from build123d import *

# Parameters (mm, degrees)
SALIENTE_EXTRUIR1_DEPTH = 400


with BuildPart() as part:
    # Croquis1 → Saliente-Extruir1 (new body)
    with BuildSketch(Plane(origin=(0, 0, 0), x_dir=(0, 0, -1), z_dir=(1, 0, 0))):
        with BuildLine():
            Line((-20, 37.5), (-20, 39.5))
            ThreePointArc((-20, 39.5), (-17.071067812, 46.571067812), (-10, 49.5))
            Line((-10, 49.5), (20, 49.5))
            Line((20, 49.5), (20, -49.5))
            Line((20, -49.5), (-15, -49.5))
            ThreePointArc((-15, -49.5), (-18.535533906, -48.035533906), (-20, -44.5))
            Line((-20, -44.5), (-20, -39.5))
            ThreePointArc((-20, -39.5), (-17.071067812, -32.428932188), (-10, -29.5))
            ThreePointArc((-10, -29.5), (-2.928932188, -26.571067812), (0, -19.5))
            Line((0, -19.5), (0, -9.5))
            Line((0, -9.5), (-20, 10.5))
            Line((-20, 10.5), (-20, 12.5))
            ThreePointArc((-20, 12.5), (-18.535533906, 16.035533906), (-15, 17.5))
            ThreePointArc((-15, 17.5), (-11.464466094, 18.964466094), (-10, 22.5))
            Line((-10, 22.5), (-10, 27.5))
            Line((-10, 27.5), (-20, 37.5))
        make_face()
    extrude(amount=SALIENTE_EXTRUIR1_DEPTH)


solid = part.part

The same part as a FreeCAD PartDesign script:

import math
import FreeCAD as App
import Part
import Sketcher

V = App.Vector
Q = App.Units.Quantity

doc = App.newDocument("Part")
params = doc.addObject("Spreadsheet::Sheet", "Params")
for row, (alias, value) in enumerate([
    ("sketch1_radius", "5 mm"),
    ("sketch1_width", "2 mm"),
    ("sketch1_width2", "5 mm"),
    ("sketch1_width3", "10 mm"),
    ("sketch1_width4", "99 mm"),
    ("pad1_length", "400 mm"),
], start=1):
    params.set(f"A{row}", alias)
    params.set(f"B{row}", "=" + value)
    params.setAlias(f"B{row}", alias)

body = doc.addObject("PartDesign::Body", "Body")

# Sketch on YZ plane
sketch1 = doc.addObject("Sketcher::SketchObject", "Sketch")
body.addObject(sketch1)
sketch1.AttachmentSupport = (doc.YZ_Plane, [""])
sketch1.MapMode = "FlatFace"
sketch1.addGeometry([
    Part.LineSegment(V(39.5, 20, 0), V(37.5, 20, 0)),  # 0
    Part.LineSegment(V(37.5, 20, 0), V(27.5, 10, 0)),  # 1
    Part.LineSegment(V(27.5, 10, 0), V(22.5, 10, 0)),  # 2
    Part.ArcOfCircle(Part.Circle(V(22.5, 15, 0), V(0, 0, 1), 5), math.radians(180), math.radians(270)),  # 3
    Part.ArcOfCircle(Part.Circle(V(12.5, 15, 0), V(0, 0, 1), 5), math.radians(0), math.radians(90)),  # 4
    Part.LineSegment(V(12.5, 20, 0), V(10.5, 20, 0)),  # 5
    Part.LineSegment(V(10.5, 20, 0), V(-9.5, 0, 0)),  # 6
    Part.LineSegment(V(-9.5, 0, 0), V(-19.5, 0, 0)),  # 7
    Part.ArcOfCircle(Part.Circle(V(-19.5, 10, 0), V(0, 0, 1), 10), math.radians(180), math.radians(270)),  # 8
    Part.ArcOfCircle(Part.Circle(V(-39.5, 10, 0), V(0, 0, 1), 10), math.radians(0), math.radians(90)),  # 9
    Part.LineSegment(V(-39.5, 20, 0), V(-44.5, 20, 0)),  # 10
    Part.ArcOfCircle(Part.Circle(V(-44.5, 15, 0), V(0, 0, 1), 5), math.radians(90), math.radians(180)),  # 11
    Part.LineSegment(V(-49.5, 15, 0), V(-49.5, -20, 0)),  # 12
    Part.LineSegment(V(-49.5, -20, 0), V(49.5, -20, 0)),  # 13
    Part.LineSegment(V(49.5, -20, 0), V(49.5, 10, 0)),  # 14
    Part.ArcOfCircle(Part.Circle(V(39.5, 10, 0), V(0, 0, 1), 10), math.radians(0), math.radians(90)),  # 15
], False)
sketch1.addConstraint([
    Sketcher.Constraint("Coincident", 0, 2, 1, 1),
    Sketcher.Constraint("Coincident", 1, 2, 2, 1),
    Sketcher.Constraint("Tangent", 2, 2, 3, 2),
    Sketcher.Constraint("Tangent", 3, 1, 4, 1),
    Sketcher.Constraint("Tangent", 4, 2, 5, 1),
    Sketcher.Constraint("Coincident", 5, 2, 6, 1),
    Sketcher.Constraint("Coincident", 6, 2, 7, 1),
    Sketcher.Constraint("Tangent", 7, 2, 8, 2),
    Sketcher.Constraint("Tangent", 8, 1, 9, 1),
    Sketcher.Constraint("Tangent", 9, 2, 10, 1),
    Sketcher.Constraint("Tangent", 10, 2, 11, 1),
    Sketcher.Constraint("Tangent", 11, 2, 12, 1),
    Sketcher.Constraint("Coincident", 12, 2, 13, 1),
    Sketcher.Constraint("Coincident", 13, 2, 14, 1),
    Sketcher.Constraint("Tangent", 14, 2, 15, 1),
    Sketcher.Constraint("Tangent", 15, 2, 0, 1),
    Sketcher.Constraint("Horizontal", 0),
    Sketcher.Constraint("Horizontal", 2),
    Sketcher.Constraint("Horizontal", 5),
    Sketcher.Constraint("Horizontal", 7),
    Sketcher.Constraint("Horizontal", 10),
    Sketcher.Constraint("Vertical", 12),
    Sketcher.Constraint("Horizontal", 13),
    Sketcher.Constraint("Vertical", 14),
    Sketcher.Constraint("Equal", 3, 4),
    Sketcher.Constraint("Equal", 8, 9),
    Sketcher.Constraint("Equal", 4, 11),
    Sketcher.Constraint("Equal", 9, 15),
    Sketcher.Constraint("Symmetric", 9, 3, 15, 3, -2),
    Sketcher.Constraint("PointOnObject", 6, 2, -1),
    Sketcher.Constraint("Parallel", 1, 6),
    Sketcher.Constraint("Horizontal", 3, 3, 4, 3),
    Sketcher.Constraint("Horizontal", 8, 3, 9, 3),
    Sketcher.Constraint("Horizontal", 4, 3, 11, 3),
    Sketcher.Constraint("Horizontal", 15, 3, 1, 2),
    Sketcher.Constraint("Equal", 0, 5),
    Sketcher.Constraint("Equal", 2, 10),
    Sketcher.Constraint("Radius", 3, Q("5 mm")),
    Sketcher.Constraint("DistanceX", 0, 2, 0, 1, Q("2 mm")),
    Sketcher.Constraint("DistanceX", 2, 2, 2, 1, Q("5 mm")),
    Sketcher.Constraint("DistanceX", 7, 2, 7, 1, Q("10 mm")),
    Sketcher.Constraint("DistanceX", 13, 1, 13, 2, Q("99 mm")),
    Sketcher.Constraint("DistanceY", 12, 2, 12, 1, Q("35 mm")),
])
sketch1.setExpression("Constraints[37]", "Params.sketch1_radius")
sketch1.setExpression("Constraints[38]", "Params.sketch1_width")
sketch1.setExpression("Constraints[39]", "Params.sketch1_width2")
sketch1.setExpression("Constraints[40]", "Params.sketch1_width3")
sketch1.setExpression("Constraints[41]", "Params.sketch1_width4")
pad1 = doc.addObject("PartDesign::Pad", "Pad")
body.addObject(pad1)
pad1.Profile = sketch1
pad1.setExpression("Length", "Params.pad1_length")

doc.recompute()
